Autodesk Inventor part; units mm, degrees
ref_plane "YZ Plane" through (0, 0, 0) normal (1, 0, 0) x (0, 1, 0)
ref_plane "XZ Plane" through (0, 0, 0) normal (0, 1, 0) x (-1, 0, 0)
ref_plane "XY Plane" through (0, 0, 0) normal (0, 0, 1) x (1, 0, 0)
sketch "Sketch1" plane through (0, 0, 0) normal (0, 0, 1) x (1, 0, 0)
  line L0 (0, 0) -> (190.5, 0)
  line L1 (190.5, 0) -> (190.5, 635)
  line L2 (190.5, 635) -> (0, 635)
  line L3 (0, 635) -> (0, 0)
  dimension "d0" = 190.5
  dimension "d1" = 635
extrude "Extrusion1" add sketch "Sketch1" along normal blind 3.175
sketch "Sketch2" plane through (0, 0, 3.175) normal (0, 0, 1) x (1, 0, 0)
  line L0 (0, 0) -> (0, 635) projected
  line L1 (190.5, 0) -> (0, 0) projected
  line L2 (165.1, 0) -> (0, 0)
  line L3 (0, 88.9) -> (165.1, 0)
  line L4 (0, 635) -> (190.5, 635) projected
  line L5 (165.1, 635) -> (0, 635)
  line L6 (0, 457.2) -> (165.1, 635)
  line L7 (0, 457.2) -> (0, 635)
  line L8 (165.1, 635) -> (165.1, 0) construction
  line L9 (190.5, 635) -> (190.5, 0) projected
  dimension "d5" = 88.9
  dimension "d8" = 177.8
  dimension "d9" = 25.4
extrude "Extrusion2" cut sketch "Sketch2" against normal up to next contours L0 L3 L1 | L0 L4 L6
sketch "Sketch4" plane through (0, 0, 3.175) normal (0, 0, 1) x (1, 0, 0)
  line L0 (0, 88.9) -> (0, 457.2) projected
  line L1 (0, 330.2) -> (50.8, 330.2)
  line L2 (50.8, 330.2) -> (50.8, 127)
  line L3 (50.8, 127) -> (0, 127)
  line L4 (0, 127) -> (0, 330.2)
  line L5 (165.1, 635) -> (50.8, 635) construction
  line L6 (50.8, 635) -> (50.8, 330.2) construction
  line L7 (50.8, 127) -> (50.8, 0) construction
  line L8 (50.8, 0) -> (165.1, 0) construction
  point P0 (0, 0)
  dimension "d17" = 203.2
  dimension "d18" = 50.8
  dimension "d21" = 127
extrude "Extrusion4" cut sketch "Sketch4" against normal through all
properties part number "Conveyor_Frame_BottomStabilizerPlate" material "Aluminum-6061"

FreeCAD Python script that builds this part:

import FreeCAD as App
import Part
import Sketcher

V = App.Vector
Q = App.Units.Quantity

doc = App.newDocument("Part")
body = doc.addObject("PartDesign::Body", "Body")

sketch1 = body.newObject("Sketcher::SketchObject", "Sketch")
sketch1.AttachmentSupport = (doc.getObject("XY_Plane"), [""])
sketch1.MapMode = "FlatFace"
sketch1.addGeometry(Part.LineSegment(V(0, 635, 0), V(0, 0, 0)), False)
sketch1.addGeometry(Part.LineSegment(V(0, 0, 0), V(190, 0, 0)), False)
sketch1.addGeometry(Part.LineSegment(V(190, 0, 0), V(190, 635, 0)), False)
sketch1.addGeometry(Part.LineSegment(V(190, 635, 0), V(0, 635, 0)), False)
sketch1.addConstraint(Sketcher.Constraint("Coincident", 0, 2, 1, 1))
sketch1.addConstraint(Sketcher.Constraint("Coincident", 1, 2, 2, 1))
sketch1.addConstraint(Sketcher.Constraint("Coincident", 2, 2, 3, 1))
sketch1.addConstraint(Sketcher.Constraint("Coincident", 3, 2, 0, 1))
sketch1.addConstraint(Sketcher.Constraint("Vertical", 0))
sketch1.addConstraint(Sketcher.Constraint("Horizontal", 1))
sketch1.addConstraint(Sketcher.Constraint("Vertical", 2))
sketch1.addConstraint(Sketcher.Constraint("Horizontal", 3))
sketch1.addConstraint(Sketcher.Constraint("Coincident", 0, 2, -1, 1))
sketch1.addConstraint(Sketcher.Constraint("DistanceY", 0, 2, 0, 1, Q("25 in")))
sketch1.addConstraint(Sketcher.Constraint("DistanceX", 1, 1, 1, 2, Q("7.5 in")))
pad1 = body.newObject("PartDesign::Pad", "Pad")
pad1.Profile = sketch1
pad1.Length = Q("0.125 in")

sketch2 = body.newObject("Sketcher::SketchObject", "Sketch001")
sketch2.AttachmentSupport = (doc.getObject("XY_Plane"), [""])
sketch2.MapMode = "FlatFace"
sketch2.AttachmentOffset = App.Placement(V(0, 0, 0.125 * 25.4), App.Rotation())
sketch2.addGeometry(Part.LineSegment(V(0, 89, 0), V(0, 0, 0)), False)
sketch2.addGeometry(Part.LineSegment(V(0, 0, 0), V(165, 0, 0)), False)
sketch2.addGeometry(Part.LineSegment(V(165, 0, 0), V(0, 89, 0)), False)
sketch2.addGeometry(Part.LineSegment(V(0, 635, 0), V(0, 457, 0)), False)
sketch2.addGeometry(Part.LineSegment(V(0, 457, 0), V(165, 635, 0)), False)
sketch2.addGeometry(Part.LineSegment(V(165, 635, 0), V(0, 635, 0)), False)
sketch2.addConstraint(Sketcher.Constraint("Coincident", 0, 2, 1, 1))
sketch2.addConstraint(Sketcher.Constraint("Coincident", 1, 2, 2, 1))
sketch2.addConstraint(Sketcher.Constraint("Coincident", 2, 2, 0, 1))
sketch2.addConstraint(Sketcher.Constraint("Coincident", 3, 2, 4, 1))
sketch2.addConstraint(Sketcher.Constraint("Coincident", 4, 2, 5, 1))
sketch2.addConstraint(Sketcher.Constraint("Coincident", 5, 2, 3, 1))
sketch2.addConstraint(Sketcher.Constraint("Vertical", 0))
sketch2.addConstraint(Sketcher.Constraint("Horizontal", 1))
sketch2.addConstraint(Sketcher.Constraint("Vertical", 3))
sketch2.addConstraint(Sketcher.Constraint("Horizontal", 5))
sketch2.addConstraint(Sketcher.Constraint("Coincident", 0, 2, -1, 1))
sketch2.addConstraint(Sketcher.Constraint("PointOnObject", 3, 2, -2))
sketch2.addConstraint(Sketcher.Constraint("Vertical", 1, 2, 4, 2))
sketch2.addConstraint(Sketcher.Constraint("DistanceY", 3, 2, 3, 1, Q("7 in")))
sketch2.addConstraint(Sketcher.Constraint("DistanceY", 0, 2, 0, 1, Q("3.5 in")))
sketch2.addConstraint(Sketcher.Constraint("DistanceX", 1, 1, 1, 2, Q("6.5 in")))
sketch2.addConstraint(Sketcher.Constraint("DistanceY", -1, 1, 3, 2, Q("18 in")))
pocket1 = body.newObject("PartDesign::Pocket", "Pocket")
pocket1.Profile = sketch2
pocket1.Type = "UpToFirst"

sketch3 = body.newObject("Sketcher::SketchObject", "Sketch002")
sketch3.AttachmentSupport = (doc.getObject("XY_Plane"), [""])
sketch3.MapMode = "FlatFace"
sketch3.AttachmentOffset = App.Placement(V(0, 0, 0.125 * 25.4), App.Rotation())
sketch3.addGeometry(Part.LineSegment(V(0, 330, 0), V(0, 127, 0)), False)
sketch3.addGeometry(Part.LineSegment(V(0, 127, 0), V(51, 127, 0)), False)
sketch3.addGeometry(Part.LineSegment(V(51, 127, 0), V(51, 330, 0)), False)
sketch3.addGeometry(Part.LineSegment(V(51, 330, 0), V(0, 330, 0)), False)
sketch3.addConstraint(Sketcher.Constraint("Coincident", 0, 2, 1, 1))
sketch3.addConstraint(Sketcher.Constraint("Coincident", 1, 2, 2, 1))
sketch3.addConstraint(Sketcher.Constraint("Coincident", 2, 2, 3, 1))
sketch3.addConstraint(Sketcher.Constraint("Coincident", 3, 2, 0, 1))
sketch3.addConstraint(Sketcher.Constraint("Vertical", 0))
sketch3.addConstraint(Sketcher.Constraint("Horizontal", 1))
sketch3.addConstraint(Sketcher.Constraint("Vertical", 2))
sketch3.addConstraint(Sketcher.Constraint("Horizontal", 3))
sketch3.addConstraint(Sketcher.Constraint("PointOnObject", 0, 2, -2))
sketch3.addConstraint(Sketcher.Constraint("DistanceX", 1, 1, 1, 2, Q("2 in")))
sketch3.addConstraint(Sketcher.Constraint("DistanceY", 0, 2, 0, 1, Q("8 in")))
sketch3.addConstraint(Sketcher.Constraint("DistanceY", -1, 1, 0, 2, Q("5 in")))
pocket2 = body.newObject("PartDesign::Pocket", "Pocket001")
pocket2.Profile = sketch3
pocket2.Type = "ThroughAll"

doc.recompute()
